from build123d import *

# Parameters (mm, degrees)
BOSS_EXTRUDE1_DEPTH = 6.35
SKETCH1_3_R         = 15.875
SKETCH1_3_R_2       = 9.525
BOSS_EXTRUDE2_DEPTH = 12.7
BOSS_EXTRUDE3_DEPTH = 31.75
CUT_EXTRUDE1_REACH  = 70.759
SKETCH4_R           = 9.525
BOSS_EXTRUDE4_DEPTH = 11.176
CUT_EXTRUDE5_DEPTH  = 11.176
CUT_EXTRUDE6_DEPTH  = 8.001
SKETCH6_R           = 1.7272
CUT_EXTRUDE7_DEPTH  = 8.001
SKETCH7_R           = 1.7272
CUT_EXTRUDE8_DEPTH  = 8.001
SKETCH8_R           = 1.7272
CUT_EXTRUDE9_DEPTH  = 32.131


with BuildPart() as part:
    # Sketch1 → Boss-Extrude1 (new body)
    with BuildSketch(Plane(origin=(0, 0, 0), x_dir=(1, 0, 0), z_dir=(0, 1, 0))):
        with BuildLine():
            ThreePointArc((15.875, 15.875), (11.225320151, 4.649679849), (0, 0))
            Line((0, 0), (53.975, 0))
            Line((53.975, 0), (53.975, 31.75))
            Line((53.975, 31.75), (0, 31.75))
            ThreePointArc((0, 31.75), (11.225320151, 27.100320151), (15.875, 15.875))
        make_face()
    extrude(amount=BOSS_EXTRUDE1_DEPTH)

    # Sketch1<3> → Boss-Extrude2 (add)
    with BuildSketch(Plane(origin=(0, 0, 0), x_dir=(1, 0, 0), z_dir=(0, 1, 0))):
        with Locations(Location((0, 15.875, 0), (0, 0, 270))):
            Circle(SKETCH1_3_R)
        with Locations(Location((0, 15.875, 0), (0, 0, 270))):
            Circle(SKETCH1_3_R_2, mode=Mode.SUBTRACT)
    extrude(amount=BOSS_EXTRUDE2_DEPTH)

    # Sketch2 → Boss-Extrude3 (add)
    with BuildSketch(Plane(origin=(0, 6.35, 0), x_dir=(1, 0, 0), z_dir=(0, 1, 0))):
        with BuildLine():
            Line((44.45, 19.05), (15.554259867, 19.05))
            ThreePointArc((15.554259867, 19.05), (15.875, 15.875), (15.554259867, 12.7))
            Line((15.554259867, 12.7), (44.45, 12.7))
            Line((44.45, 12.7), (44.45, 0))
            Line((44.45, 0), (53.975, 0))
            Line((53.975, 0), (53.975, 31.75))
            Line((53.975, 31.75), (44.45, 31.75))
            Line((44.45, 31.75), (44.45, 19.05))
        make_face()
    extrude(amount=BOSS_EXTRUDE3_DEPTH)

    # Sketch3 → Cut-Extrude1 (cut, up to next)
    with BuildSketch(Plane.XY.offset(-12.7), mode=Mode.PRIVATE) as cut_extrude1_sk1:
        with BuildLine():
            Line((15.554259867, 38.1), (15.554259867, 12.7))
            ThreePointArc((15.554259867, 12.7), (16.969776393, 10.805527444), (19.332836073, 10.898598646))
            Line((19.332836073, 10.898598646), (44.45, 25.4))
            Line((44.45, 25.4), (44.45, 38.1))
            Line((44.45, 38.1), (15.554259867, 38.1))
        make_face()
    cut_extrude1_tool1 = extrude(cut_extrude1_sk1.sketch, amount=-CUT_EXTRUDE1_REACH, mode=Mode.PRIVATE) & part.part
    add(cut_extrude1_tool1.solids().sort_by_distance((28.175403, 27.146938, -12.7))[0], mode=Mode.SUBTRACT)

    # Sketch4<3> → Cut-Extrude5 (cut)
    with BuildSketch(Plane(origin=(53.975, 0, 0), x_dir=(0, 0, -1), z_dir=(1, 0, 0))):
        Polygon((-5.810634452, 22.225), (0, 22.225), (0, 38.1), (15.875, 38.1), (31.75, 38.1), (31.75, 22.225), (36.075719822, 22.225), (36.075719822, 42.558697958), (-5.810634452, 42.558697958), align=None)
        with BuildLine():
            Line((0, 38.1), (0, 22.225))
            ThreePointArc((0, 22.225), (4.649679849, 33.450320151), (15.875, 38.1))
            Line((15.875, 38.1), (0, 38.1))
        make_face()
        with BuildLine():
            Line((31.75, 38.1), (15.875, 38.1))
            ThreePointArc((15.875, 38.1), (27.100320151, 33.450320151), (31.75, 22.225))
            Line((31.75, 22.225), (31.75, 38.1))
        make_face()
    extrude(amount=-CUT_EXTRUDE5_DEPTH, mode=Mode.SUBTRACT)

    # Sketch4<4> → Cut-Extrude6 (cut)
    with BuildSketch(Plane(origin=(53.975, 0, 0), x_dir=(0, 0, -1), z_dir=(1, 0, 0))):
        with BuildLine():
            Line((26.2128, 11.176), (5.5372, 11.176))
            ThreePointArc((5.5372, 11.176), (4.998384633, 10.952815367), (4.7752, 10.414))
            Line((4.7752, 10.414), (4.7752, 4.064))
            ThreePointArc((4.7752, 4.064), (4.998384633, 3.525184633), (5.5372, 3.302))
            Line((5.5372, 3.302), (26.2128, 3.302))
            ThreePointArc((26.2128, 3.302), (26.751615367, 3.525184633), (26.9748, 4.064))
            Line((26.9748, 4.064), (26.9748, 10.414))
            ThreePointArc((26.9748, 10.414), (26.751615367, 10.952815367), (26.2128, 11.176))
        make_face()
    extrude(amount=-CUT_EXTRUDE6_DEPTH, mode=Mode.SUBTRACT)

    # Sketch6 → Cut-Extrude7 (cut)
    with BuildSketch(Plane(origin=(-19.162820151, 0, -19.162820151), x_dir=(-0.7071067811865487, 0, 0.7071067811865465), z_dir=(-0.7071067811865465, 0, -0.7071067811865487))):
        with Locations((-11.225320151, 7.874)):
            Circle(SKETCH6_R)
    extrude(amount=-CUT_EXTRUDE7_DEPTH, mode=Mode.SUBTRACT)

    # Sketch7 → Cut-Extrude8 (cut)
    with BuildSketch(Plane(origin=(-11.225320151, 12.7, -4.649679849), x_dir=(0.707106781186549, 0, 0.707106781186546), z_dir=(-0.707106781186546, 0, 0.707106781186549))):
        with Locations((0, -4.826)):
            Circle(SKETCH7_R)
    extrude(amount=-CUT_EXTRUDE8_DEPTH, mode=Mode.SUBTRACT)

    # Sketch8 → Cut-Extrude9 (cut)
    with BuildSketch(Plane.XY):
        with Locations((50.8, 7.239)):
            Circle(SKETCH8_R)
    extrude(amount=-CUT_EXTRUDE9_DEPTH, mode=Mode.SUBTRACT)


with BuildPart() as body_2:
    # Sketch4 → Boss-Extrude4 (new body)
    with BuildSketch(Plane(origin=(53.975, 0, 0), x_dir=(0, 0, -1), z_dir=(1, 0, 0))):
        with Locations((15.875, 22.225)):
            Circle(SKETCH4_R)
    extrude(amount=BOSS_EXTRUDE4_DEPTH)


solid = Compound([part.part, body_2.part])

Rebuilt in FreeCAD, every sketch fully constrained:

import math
import FreeCAD as App
import Part
import Sketcher

V = App.Vector
Q = App.Units.Quantity

doc = App.newDocument("Part")
body = doc.addObject("PartDesign::Body", "Body")

# Sketch on XZ plane
sketch1 = doc.addObject("Sketcher::SketchObject", "Sketch")
body.addObject(sketch1)
sketch1.AttachmentSupport = (doc.XZ_Plane, [""])
sketch1.MapMode = "FlatFace"
sketch1.addGeometry(Part.ArcOfCircle(Part.Circle(V(0, -15.875, 0), V(0, 0, 1), 15.875), math.radians(0), math.radians(90)), False)
sketch1.addGeometry(Part.LineSegment(V(0, 0, 0), V(53.975, 0, 0)), False)
sketch1.addGeometry(Part.LineSegment(V(53.975, 0, 0), V(53.975, -31.75, 0)), False)
sketch1.addGeometry(Part.LineSegment(V(53.975, -31.75, 0), V(0, -31.75, 0)), False)
sketch1.addGeometry(Part.ArcOfCircle(Part.Circle(V(0, -15.875, 0), V(0, 0, 1), 15.875), math.radians(-90), math.radians(0)), False)
sketch1.addConstraint(Sketcher.Constraint("Tangent", 0, 2, 1, 1))
sketch1.addConstraint(Sketcher.Constraint("Coincident", 1, 2, 2, 1))
sketch1.addConstraint(Sketcher.Constraint("Coincident", 2, 2, 3, 1))
sketch1.addConstraint(Sketcher.Constraint("Tangent", 3, 2, 4, 1))
sketch1.addConstraint(Sketcher.Constraint("Tangent", 4, 2, 0, 1))
sketch1.addConstraint(Sketcher.Constraint("Horizontal", 1))
sketch1.addConstraint(Sketcher.Constraint("Vertical", 2))
sketch1.addConstraint(Sketcher.Constraint("Horizontal", 3))
sketch1.addConstraint(Sketcher.Constraint("Coincident", 0, 2, -1, 1))
sketch1.addConstraint(Sketcher.Constraint("Equal", 0, 4))
sketch1.addConstraint(Sketcher.Constraint("Horizontal", 0, 3, 4, 2))
sketch1.addConstraint(Sketcher.Constraint("Radius", 0, Q("0.625 in")))
sketch1.addConstraint(Sketcher.Constraint("DistanceX", 4, 2, 1, 2, Q("1.5 in")))
pad1 = doc.addObject("PartDesign::Pad", "Pad")
body.addObject(pad1)
pad1.Profile = sketch1
pad1.Length = Q("0.25 in")
pad1.Reversed = True

# Sketch on XZ plane
sketch2 = doc.addObject("Sketcher::SketchObject", "Sketch001")
body.addObject(sketch2)
sketch2.AttachmentSupport = (doc.XZ_Plane, [""])
sketch2.MapMode = "FlatFace"
sketch2.addGeometry(Part.Circle(V(0, -15.875, 0), V(0, 0, 1), 15.875), False)
sketch2.addGeometry(Part.Circle(V(0, -15.875, 0), V(0, 0, 1), 9.525), False)
sketch2.addConstraint(Sketcher.Constraint("Coincident", 1, 3, 0, 3))
sketch2.addConstraint(Sketcher.Constraint("PointOnObject", 0, 3, -2))
sketch2.addConstraint(Sketcher.Constraint("Diameter", 0, Q("1.25 in")))
sketch2.addConstraint(Sketcher.Constraint("Diameter", 1, Q("0.75 in")))
sketch2.addConstraint(Sketcher.Constraint("DistanceY", 0, 3, -1, 1, Q("0.625 in")))
pad2 = doc.addObject("PartDesign::Pad", "Pad001")
body.addObject(pad2)
pad2.Profile = sketch2
pad2.Length = Q("0.5 in")
pad2.Reversed = True

# Sketch on XZ plane
sketch3 = doc.addObject("Sketcher::SketchObject", "Sketch002")
body.addObject(sketch3)
sketch3.AttachmentSupport = (doc.XZ_Plane, [""])
sketch3.MapMode = "FlatFace"
sketch3.AttachmentOffset = App.Placement(V(0, 0, -0.25 * 25.4), App.Rotation())
sketch3.addGeometry(Part.LineSegment(V(44.45, -19.05, 0), V(15.55426, -19.05, 0)), False)
sketch3.addGeometry(Part.ArcOfCircle(Part.Circle(V(0, -15.875, 0), V(0, 0, 1), 15.875), math.radians(-11.536959), math.radians(11.536959)), False)
sketch3.addGeometry(Part.LineSegment(V(15.55426, -12.7, 0), V(44.45, -12.7, 0)), False)
sketch3.addGeometry(Part.LineSegment(V(44.45, -12.7, 0), V(44.45, 0, 0)), False)
sketch3.addGeometry(Part.LineSegment(V(44.45, 0, 0), V(53.975, 0, 0)), False)
sketch3.addGeometry(Part.LineSegment(V(53.975, 0, 0), V(53.975, -31.75, 0)), False)
sketch3.addGeometry(Part.LineSegment(V(53.975, -31.75, 0), V(44.45, -31.75, 0)), False)
sketch3.addGeometry(Part.LineSegment(V(44.45, -31.75, 0), V(44.45, -19.05, 0)), False)
sketch3.addConstraint(Sketcher.Constraint("Coincident", 0, 2, 1, 1))
sketch3.addConstraint(Sketcher.Constraint("Coincident", 1, 2, 2, 1))
sketch3.addConstraint(Sketcher.Constraint("Coincident", 2, 2, 3, 1))
sketch3.addConstraint(Sketcher.Constraint("Coincident", 3, 2, 4, 1))
sketch3.addConstraint(Sketcher.Constraint("Coincident", 4, 2, 5, 1))
sketch3.addConstraint(Sketcher.Constraint("Coincident", 5, 2, 6, 1))
sketch3.addConstraint(Sketcher.Constraint("Coincident", 6, 2, 7, 1))
sketch3.addConstraint(Sketcher.Constraint("Coincident", 7, 2, 0, 1))
sketch3.addConstraint(Sketcher.Constraint("Horizontal", 0))
sketch3.addConstraint(Sketcher.Constraint("Horizontal", 2))
sketch3.addConstraint(Sketcher.Constraint("Vertical", 3))
sketch3.addConstraint(Sketcher.Constraint("Horizontal", 4))
sketch3.addConstraint(Sketcher.Constraint("Vertical", 5))
sketch3.addConstraint(Sketcher.Constraint("Horizontal", 6))
sketch3.addConstraint(Sketcher.Constraint("Vertical", 7))
sketch3.addConstraint(Sketcher.Constraint("PointOnObject", 1, 3, -2))
sketch3.addConstraint(Sketcher.Constraint("PointOnObject", 3, 2, -1))
sketch3.addConstraint(Sketcher.Constraint("Vertical", 0, 2, 1, 2))
sketch3.addConstraint(Sketcher.Constraint("Vertical", 3, 2, 6, 2))
sketch3.addConstraint(Sketcher.Constraint("Equal", 3, 7))
sketch3.addConstraint(Sketcher.Constraint("DistanceY", 3, 1, 3, 2, Q("0.5 in")))
sketch3.addConstraint(Sketcher.Constraint("Radius", 1, Q("0.625 in")))
sketch3.addConstraint(Sketcher.Constraint("DistanceY", 5, 2, 5, 1, Q("1.25 in")))
sketch3.addConstraint(Sketcher.Constraint("DistanceX", 4, 1, 4, 2, Q("0.375 in")))
sketch3.addConstraint(Sketcher.Constraint("DistanceX", -1, 1, 2, 2, Q("1.75 in")))
pad3 = doc.addObject("PartDesign::Pad", "Pad002")
body.addObject(pad3)
pad3.Profile = sketch3
pad3.Length = Q("1.25 in")
pad3.Reversed = True

# Sketch on XY plane
sketch4 = doc.addObject("Sketcher::SketchObject", "Sketch003")
body.addObject(sketch4)
sketch4.AttachmentSupport = (doc.XY_Plane, [""])
sketch4.MapMode = "FlatFace"
sketch4.AttachmentOffset = App.Placement(V(0, 0, -0.5 * 25.4), App.Rotation())
sketch4.addGeometry(Part.LineSegment(V(15.55426, 38.1, 0), V(15.55426, 12.7, 0)), False)
sketch4.addGeometry(Part.ArcOfCircle(Part.Circle(V(18.062836, 13.098303, 0), V(0, 0, 1), 2.54), math.radians(-170.978083), math.radians(-60)), False)
sketch4.addGeometry(Part.LineSegment(V(19.332836, 10.898599, 0), V(44.45, 25.4, 0)), False)
sketch4.addGeometry(Part.LineSegment(V(44.45, 25.4, 0), V(44.45, 38.1, 0)), False)
sketch4.addGeometry(Part.LineSegment(V(44.45, 38.1, 0), V(15.55426, 38.1, 0)), False)
sketch4.addConstraint(Sketcher.Constraint("Coincident", 0, 2, 1, 1))
sketch4.addConstraint(Sketcher.Constraint("Tangent", 1, 2, 2, 1))
sketch4.addConstraint(Sketcher.Constraint("Coincident", 2, 2, 3, 1))
sketch4.addConstraint(Sketcher.Constraint("Coincident", 3, 2, 4, 1))
sketch4.addConstraint(Sketcher.Constraint("Coincident", 4, 2, 0, 1))
sketch4.addConstraint(Sketcher.Constraint("Vertical", 0))
sketch4.addConstraint(Sketcher.Constraint("Vertical", 3))
sketch4.addConstraint(Sketcher.Constraint("Horizontal", 4))
sketch4.addConstraint(Sketcher.Constraint("Radius", 1, Q("0.1 in")))
sketch4.addConstraint(Sketcher.Constraint("DistanceY", 0, 2, 0, 1, Q("1 in")))
sketch4.addConstraint(Sketcher.Constraint("DistanceY", 3, 1, 3, 2, Q("0.5 in")))
sketch4.addConstraint(Sketcher.Constraint("DistanceY", -1, 1, 2, 2, Q("1 in")))
sketch4.addConstraint(Sketcher.Constraint("Angle", 2, Q("30 deg")))
sketch4.addConstraint(Sketcher.Constraint("DistanceX", -1, 1, 2, 2, Q("1.75 in")))
sketch4.addConstraint(Sketcher.Constraint("DistanceX", 4, 2, 4, 1, Q("28.89574 mm")))
pocket1 = doc.addObject("PartDesign::Pocket", "Pocket")
body.addObject(pocket1)
pocket1.Profile = sketch4
pocket1.Type = "UpToFirst"

# Sketch on YZ plane
sketch5 = doc.addObject("Sketcher::SketchObject", "Sketch004")
body.addObject(sketch5)
sketch5.AttachmentSupport = (doc.YZ_Plane, [""])
sketch5.MapMode = "FlatFace"
sketch5.AttachmentOffset = App.Placement(V(0, 0, 2.125 * 25.4), App.Rotation())
sketch5.addGeometry(Part.LineSegment(V(22.225, 5.810634, 0), V(22.225, 0, 0)), False)
sketch5.addGeometry(Part.ArcOfCircle(Part.Circle(V(22.225, -15.875, 0), V(0, 0, 1), 15.875), math.radians(0), math.radians(90)), False)
sketch5.addGeometry(Part.ArcOfCircle(Part.Circle(V(22.225, -15.875, 0), V(0, 0, 1), 15.875), math.radians(-90), math.radians(0)), False)
sketch5.addGeometry(Part.LineSegment(V(22.225, -31.75, 0), V(22.225, -36.07572, 0)), False)
sketch5.addGeometry(Part.LineSegment(V(22.225, -36.07572, 0), V(42.558698, -36.07572, 0)), False)
sketch5.addGeometry(Part.LineSegment(V(42.558698, -36.07572, 0), V(42.558698, 5.810634, 0)), False)
sketch5.addGeometry(Part.LineSegment(V(42.558698, 5.810634, 0), V(22.225, 5.810634, 0)), False)
sketch5.addConstraint(Sketcher.Constraint("Coincident", 0, 2, 1, 2))
sketch5.addConstraint(Sketcher.Constraint("Tangent", 1, 1, 2, 2))
sketch5.addConstraint(Sketcher.Constraint("Coincident", 2, 1, 3, 1))
sketch5.addConstraint(Sketcher.Constraint("Coincident", 3, 2, 4, 1))
sketch5.addConstraint(Sketcher.Constraint("Coincident", 4, 2, 5, 1))
sketch5.addConstraint(Sketcher.Constraint("Coincident", 5, 2, 6, 1))
sketch5.addConstraint(Sketcher.Constraint("Coincident", 6, 2, 0, 1))
sketch5.addConstraint(Sketcher.Constraint("Vertical", 0))
sketch5.addConstraint(Sketcher.Constraint("Vertical", 3))
sketch5.addConstraint(Sketcher.Constraint("Horizontal", 4))
sketch5.addConstraint(Sketcher.Constraint("Vertical", 5))
sketch5.addConstraint(Sketcher.Constraint("Horizontal", 6))
sketch5.addConstraint(Sketcher.Constraint("Equal", 1, 2))
sketch5.addConstraint(Sketcher.Constraint("PointOnObject", 0, 2, -1))
sketch5.addConstraint(Sketcher.Constraint("Horizontal", 2, 3, 1, 1))
sketch5.addConstraint(Sketcher.Constraint("Vertical", 2, 3, 0, 2))
sketch5.addConstraint(Sketcher.Constraint("Vertical", 0, 2, 2, 1))
sketch5.addConstraint(Sketcher.Constraint("Radius", 1, Q("0.625 in")))
sketch5.addConstraint(Sketcher.Constraint("DistanceX", -1, 1, 1, 1, Q("1.5 in")))
sketch5.addConstraint(Sketcher.Constraint("DistanceY", 3, 2, 3, 1, Q("4.32572 mm")))
sketch5.addConstraint(Sketcher.Constraint("DistanceX", 4, 1, 4, 2, Q("20.333698 mm")))
sketch5.addConstraint(Sketcher.Constraint("DistanceY", 0, 2, 0, 1, Q("5.810634 mm")))
pocket2 = doc.addObject("PartDesign::Pocket", "Pocket001")
body.addObject(pocket2)
pocket2.Profile = sketch5
pocket2.Length = Q("0.44 in")

# Sketch on YZ plane
sketch6 = doc.addObject("Sketcher::SketchObject", "Sketch005")
body.addObject(sketch6)
sketch6.AttachmentSupport = (doc.YZ_Plane, [""])
sketch6.MapMode = "FlatFace"
sketch6.AttachmentOffset = App.Placement(V(0, 0, 2.125 * 25.4), App.Rotation())
sketch6.addGeometry(Part.LineSegment(V(11.176, -26.2128, 0), V(11.176, -5.5372, 0)), False)
sketch6.addGeometry(Part.ArcOfCircle(Part.Circle(V(10.414, -5.5372, 0), V(0, 0, 1), 0.762), math.radians(0), math.radians(90)), False)
sketch6.addGeometry(Part.LineSegment(V(10.414, -4.7752, 0), V(4.064, -4.7752, 0)), False)
sketch6.addGeometry(Part.ArcOfCircle(Part.Circle(V(4.064, -5.5372, 0), V(0, 0, 1), 0.762), math.radians(90), math.radians(180)), False)
sketch6.addGeometry(Part.LineSegment(V(3.302, -5.5372, 0), V(3.302, -26.2128, 0)), False)
sketch6.addGeometry(Part.ArcOfCircle(Part.Circle(V(4.064, -26.2128, 0), V(0, 0, 1), 0.762), math.radians(-180), math.radians(-90)), False)
sketch6.addGeometry(Part.LineSegment(V(4.064, -26.9748, 0), V(10.414, -26.9748, 0)), False)
sketch6.addGeometry(Part.ArcOfCircle(Part.Circle(V(10.414, -26.2128, 0), V(0, 0, 1), 0.762), math.radians(-90), math.radians(0)), False)
sketch6.addConstraint(Sketcher.Constraint("Tangent", 0, 2, 1, 1))
sketch6.addConstraint(Sketcher.Constraint("Tangent", 1, 2, 2, 1))
sketch6.addConstraint(Sketcher.Constraint("Tangent", 2, 2, 3, 1))
sketch6.addConstraint(Sketcher.Constraint("Tangent", 3, 2, 4, 1))
sketch6.addConstraint(Sketcher.Constraint("Tangent", 4, 2, 5, 1))
sketch6.addConstraint(Sketcher.Constraint("Tangent", 5, 2, 6, 1))
sketch6.addConstraint(Sketcher.Constraint("Tangent", 6, 2, 7, 1))
sketch6.addConstraint(Sketcher.Constraint("Tangent", 7, 2, 0, 1))
sketch6.addConstraint(Sketcher.Constraint("Vertical", 0))
sketch6.addConstraint(Sketcher.Constraint("Horizontal", 2))
sketch6.addConstraint(Sketcher.Constraint("Vertical", 4))
sketch6.addConstraint(Sketcher.Constraint("Horizontal", 6))
sketch6.addConstraint(Sketcher.Constraint("Equal", 1, 3))
sketch6.addConstraint(Sketcher.Constraint("Equal", 3, 5))
sketch6.addConstraint(Sketcher.Constraint("Equal", 5, 7))
sketch6.addConstraint(Sketcher.Constraint("Radius", 1, Q("0.03 in")))
sketch6.addConstraint(Sketcher.Constraint("DistanceX", 2, 2, 2, 1, Q("0.25 in")))
sketch6.addConstraint(Sketcher.Constraint("DistanceY", 0, 1, 0, 2, Q("0.814 in")))
sketch6.addConstraint(Sketcher.Constraint("DistanceX", -1, 1, 1, 3, Q("0.41 in")))
sketch6.addConstraint(Sketcher.Constraint("DistanceY", 1, 3, -1, 1, Q("0.218 in")))
pocket3 = doc.addObject("PartDesign::Pocket", "Pocket002")
body.addObject(pocket3)
pocket3.Profile = sketch6
pocket3.Length = Q("0.315 in")

# Sketch on an angled plane
sketch7 = doc.addObject("Sketcher::SketchObject", "Sketch006")
body.addObject(sketch7)
sketch7.Placement = App.Placement(V(-19.16282, 0, -19.16282), App.Rotation(V(-0.707106781, 0, 0.707106781), V(0, 0.999999999, 0), V(-0.707106781, 0, -0.707106781), "ZXY"))
sketch7.addGeometry(Part.Circle(V(-11.22532, 7.874, 0), V(0, 0, 1), 1.7272), False)
sketch7.addConstraint(Sketcher.Constraint("Diameter", 0, Q("0.136 in")))
sketch7.addConstraint(Sketcher.Constraint("DistanceY", -1, 1, 0, 3, Q("0.31 in")))
sketch7.addConstraint(Sketcher.Constraint("DistanceX", 0, 3, -1, 1, Q("11.22532 mm")))
pocket4 = doc.addObject("PartDesign::Pocket", "Pocket003")
body.addObject(pocket4)
pocket4.Profile = sketch7
pocket4.Length = Q("0.315 in")

# Sketch on an angled plane
sketch8 = doc.addObject("Sketcher::SketchObject", "Sketch007")
body.addObject(sketch8)
sketch8.Placement = App.Placement(V(-11.22532, 12.7, -4.64968), App.Rotation(V(0.707106781, 0, 0.707106781), V(0, 0.999999999, 0), V(-0.707106781, 0, 0.707106781), "ZXY"))
sketch8.addGeometry(Part.Circle(V(0, -4.826, 0), V(0, 0, 1), 1.7272), False)
sketch8.addConstraint(Sketcher.Constraint("PointOnObject", 0, 3, -2))
sketch8.addConstraint(Sketcher.Constraint("Diameter", 0, Q("0.136 in")))
sketch8.addConstraint(Sketcher.Constraint("DistanceY", 0, 3, -1, 1, Q("0.19 in")))
pocket5 = doc.addObject("PartDesign::Pocket", "Pocket004")
body.addObject(pocket5)
pocket5.Profile = sketch8
pocket5.Length = Q("0.315 in")

# Sketch on XY plane
sketch9 = doc.addObject("Sketcher::SketchObject", "Sketch008")
body.addObject(sketch9)
sketch9.AttachmentSupport = (doc.XY_Plane, [""])
sketch9.MapMode = "FlatFace"
sketch9.addGeometry(Part.Circle(V(50.8, 7.239, 0), V(0, 0, 1), 1.7272), False)
sketch9.addConstraint(Sketcher.Constraint("Diameter", 0, Q("0.136 in")))
sketch9.addConstraint(Sketcher.Constraint("DistanceX", -1, 1, 0, 3, Q("2 in")))
sketch9.addConstraint(Sketcher.Constraint("DistanceY", -1, 1, 0, 3, Q("0.285 in")))
pocket6 = doc.addObject("PartDesign::Pocket", "Pocket005")
body.addObject(pocket6)
pocket6.Profile = sketch9
pocket6.Length = Q("1.265 in")
body2 = doc.addObject("PartDesign::Body", "Body001")

# Sketch on YZ plane
sketch10 = doc.addObject("Sketcher::SketchObject", "Sketch009")
body2.addObject(sketch10)
sketch10.AttachmentSupport = (doc.getObject("YZ_Plane001"), [""])
sketch10.MapMode = "FlatFace"
sketch10.AttachmentOffset = App.Placement(V(0, 0, 2.125 * 25.4), App.Rotation())
sketch10.addGeometry(Part.Circle(V(22.225, -15.875, 0), V(0, 0, 1), 9.525), False)
sketch10.addConstraint(Sketcher.Constraint("Diameter", 0, Q("0.75 in")))
sketch10.addConstraint(Sketcher.Constraint("DistanceX", -1, 1, 0, 3, Q("0.875 in")))
sketch10.addConstraint(Sketcher.Constraint("DistanceY", 0, 3, -1, 1, Q("0.625 in")))
pad4 = doc.addObject("PartDesign::Pad", "Pad003")
body2.addObject(pad4)
pad4.Profile = sketch10
pad4.Length = Q("0.44 in")

doc.recompute()
